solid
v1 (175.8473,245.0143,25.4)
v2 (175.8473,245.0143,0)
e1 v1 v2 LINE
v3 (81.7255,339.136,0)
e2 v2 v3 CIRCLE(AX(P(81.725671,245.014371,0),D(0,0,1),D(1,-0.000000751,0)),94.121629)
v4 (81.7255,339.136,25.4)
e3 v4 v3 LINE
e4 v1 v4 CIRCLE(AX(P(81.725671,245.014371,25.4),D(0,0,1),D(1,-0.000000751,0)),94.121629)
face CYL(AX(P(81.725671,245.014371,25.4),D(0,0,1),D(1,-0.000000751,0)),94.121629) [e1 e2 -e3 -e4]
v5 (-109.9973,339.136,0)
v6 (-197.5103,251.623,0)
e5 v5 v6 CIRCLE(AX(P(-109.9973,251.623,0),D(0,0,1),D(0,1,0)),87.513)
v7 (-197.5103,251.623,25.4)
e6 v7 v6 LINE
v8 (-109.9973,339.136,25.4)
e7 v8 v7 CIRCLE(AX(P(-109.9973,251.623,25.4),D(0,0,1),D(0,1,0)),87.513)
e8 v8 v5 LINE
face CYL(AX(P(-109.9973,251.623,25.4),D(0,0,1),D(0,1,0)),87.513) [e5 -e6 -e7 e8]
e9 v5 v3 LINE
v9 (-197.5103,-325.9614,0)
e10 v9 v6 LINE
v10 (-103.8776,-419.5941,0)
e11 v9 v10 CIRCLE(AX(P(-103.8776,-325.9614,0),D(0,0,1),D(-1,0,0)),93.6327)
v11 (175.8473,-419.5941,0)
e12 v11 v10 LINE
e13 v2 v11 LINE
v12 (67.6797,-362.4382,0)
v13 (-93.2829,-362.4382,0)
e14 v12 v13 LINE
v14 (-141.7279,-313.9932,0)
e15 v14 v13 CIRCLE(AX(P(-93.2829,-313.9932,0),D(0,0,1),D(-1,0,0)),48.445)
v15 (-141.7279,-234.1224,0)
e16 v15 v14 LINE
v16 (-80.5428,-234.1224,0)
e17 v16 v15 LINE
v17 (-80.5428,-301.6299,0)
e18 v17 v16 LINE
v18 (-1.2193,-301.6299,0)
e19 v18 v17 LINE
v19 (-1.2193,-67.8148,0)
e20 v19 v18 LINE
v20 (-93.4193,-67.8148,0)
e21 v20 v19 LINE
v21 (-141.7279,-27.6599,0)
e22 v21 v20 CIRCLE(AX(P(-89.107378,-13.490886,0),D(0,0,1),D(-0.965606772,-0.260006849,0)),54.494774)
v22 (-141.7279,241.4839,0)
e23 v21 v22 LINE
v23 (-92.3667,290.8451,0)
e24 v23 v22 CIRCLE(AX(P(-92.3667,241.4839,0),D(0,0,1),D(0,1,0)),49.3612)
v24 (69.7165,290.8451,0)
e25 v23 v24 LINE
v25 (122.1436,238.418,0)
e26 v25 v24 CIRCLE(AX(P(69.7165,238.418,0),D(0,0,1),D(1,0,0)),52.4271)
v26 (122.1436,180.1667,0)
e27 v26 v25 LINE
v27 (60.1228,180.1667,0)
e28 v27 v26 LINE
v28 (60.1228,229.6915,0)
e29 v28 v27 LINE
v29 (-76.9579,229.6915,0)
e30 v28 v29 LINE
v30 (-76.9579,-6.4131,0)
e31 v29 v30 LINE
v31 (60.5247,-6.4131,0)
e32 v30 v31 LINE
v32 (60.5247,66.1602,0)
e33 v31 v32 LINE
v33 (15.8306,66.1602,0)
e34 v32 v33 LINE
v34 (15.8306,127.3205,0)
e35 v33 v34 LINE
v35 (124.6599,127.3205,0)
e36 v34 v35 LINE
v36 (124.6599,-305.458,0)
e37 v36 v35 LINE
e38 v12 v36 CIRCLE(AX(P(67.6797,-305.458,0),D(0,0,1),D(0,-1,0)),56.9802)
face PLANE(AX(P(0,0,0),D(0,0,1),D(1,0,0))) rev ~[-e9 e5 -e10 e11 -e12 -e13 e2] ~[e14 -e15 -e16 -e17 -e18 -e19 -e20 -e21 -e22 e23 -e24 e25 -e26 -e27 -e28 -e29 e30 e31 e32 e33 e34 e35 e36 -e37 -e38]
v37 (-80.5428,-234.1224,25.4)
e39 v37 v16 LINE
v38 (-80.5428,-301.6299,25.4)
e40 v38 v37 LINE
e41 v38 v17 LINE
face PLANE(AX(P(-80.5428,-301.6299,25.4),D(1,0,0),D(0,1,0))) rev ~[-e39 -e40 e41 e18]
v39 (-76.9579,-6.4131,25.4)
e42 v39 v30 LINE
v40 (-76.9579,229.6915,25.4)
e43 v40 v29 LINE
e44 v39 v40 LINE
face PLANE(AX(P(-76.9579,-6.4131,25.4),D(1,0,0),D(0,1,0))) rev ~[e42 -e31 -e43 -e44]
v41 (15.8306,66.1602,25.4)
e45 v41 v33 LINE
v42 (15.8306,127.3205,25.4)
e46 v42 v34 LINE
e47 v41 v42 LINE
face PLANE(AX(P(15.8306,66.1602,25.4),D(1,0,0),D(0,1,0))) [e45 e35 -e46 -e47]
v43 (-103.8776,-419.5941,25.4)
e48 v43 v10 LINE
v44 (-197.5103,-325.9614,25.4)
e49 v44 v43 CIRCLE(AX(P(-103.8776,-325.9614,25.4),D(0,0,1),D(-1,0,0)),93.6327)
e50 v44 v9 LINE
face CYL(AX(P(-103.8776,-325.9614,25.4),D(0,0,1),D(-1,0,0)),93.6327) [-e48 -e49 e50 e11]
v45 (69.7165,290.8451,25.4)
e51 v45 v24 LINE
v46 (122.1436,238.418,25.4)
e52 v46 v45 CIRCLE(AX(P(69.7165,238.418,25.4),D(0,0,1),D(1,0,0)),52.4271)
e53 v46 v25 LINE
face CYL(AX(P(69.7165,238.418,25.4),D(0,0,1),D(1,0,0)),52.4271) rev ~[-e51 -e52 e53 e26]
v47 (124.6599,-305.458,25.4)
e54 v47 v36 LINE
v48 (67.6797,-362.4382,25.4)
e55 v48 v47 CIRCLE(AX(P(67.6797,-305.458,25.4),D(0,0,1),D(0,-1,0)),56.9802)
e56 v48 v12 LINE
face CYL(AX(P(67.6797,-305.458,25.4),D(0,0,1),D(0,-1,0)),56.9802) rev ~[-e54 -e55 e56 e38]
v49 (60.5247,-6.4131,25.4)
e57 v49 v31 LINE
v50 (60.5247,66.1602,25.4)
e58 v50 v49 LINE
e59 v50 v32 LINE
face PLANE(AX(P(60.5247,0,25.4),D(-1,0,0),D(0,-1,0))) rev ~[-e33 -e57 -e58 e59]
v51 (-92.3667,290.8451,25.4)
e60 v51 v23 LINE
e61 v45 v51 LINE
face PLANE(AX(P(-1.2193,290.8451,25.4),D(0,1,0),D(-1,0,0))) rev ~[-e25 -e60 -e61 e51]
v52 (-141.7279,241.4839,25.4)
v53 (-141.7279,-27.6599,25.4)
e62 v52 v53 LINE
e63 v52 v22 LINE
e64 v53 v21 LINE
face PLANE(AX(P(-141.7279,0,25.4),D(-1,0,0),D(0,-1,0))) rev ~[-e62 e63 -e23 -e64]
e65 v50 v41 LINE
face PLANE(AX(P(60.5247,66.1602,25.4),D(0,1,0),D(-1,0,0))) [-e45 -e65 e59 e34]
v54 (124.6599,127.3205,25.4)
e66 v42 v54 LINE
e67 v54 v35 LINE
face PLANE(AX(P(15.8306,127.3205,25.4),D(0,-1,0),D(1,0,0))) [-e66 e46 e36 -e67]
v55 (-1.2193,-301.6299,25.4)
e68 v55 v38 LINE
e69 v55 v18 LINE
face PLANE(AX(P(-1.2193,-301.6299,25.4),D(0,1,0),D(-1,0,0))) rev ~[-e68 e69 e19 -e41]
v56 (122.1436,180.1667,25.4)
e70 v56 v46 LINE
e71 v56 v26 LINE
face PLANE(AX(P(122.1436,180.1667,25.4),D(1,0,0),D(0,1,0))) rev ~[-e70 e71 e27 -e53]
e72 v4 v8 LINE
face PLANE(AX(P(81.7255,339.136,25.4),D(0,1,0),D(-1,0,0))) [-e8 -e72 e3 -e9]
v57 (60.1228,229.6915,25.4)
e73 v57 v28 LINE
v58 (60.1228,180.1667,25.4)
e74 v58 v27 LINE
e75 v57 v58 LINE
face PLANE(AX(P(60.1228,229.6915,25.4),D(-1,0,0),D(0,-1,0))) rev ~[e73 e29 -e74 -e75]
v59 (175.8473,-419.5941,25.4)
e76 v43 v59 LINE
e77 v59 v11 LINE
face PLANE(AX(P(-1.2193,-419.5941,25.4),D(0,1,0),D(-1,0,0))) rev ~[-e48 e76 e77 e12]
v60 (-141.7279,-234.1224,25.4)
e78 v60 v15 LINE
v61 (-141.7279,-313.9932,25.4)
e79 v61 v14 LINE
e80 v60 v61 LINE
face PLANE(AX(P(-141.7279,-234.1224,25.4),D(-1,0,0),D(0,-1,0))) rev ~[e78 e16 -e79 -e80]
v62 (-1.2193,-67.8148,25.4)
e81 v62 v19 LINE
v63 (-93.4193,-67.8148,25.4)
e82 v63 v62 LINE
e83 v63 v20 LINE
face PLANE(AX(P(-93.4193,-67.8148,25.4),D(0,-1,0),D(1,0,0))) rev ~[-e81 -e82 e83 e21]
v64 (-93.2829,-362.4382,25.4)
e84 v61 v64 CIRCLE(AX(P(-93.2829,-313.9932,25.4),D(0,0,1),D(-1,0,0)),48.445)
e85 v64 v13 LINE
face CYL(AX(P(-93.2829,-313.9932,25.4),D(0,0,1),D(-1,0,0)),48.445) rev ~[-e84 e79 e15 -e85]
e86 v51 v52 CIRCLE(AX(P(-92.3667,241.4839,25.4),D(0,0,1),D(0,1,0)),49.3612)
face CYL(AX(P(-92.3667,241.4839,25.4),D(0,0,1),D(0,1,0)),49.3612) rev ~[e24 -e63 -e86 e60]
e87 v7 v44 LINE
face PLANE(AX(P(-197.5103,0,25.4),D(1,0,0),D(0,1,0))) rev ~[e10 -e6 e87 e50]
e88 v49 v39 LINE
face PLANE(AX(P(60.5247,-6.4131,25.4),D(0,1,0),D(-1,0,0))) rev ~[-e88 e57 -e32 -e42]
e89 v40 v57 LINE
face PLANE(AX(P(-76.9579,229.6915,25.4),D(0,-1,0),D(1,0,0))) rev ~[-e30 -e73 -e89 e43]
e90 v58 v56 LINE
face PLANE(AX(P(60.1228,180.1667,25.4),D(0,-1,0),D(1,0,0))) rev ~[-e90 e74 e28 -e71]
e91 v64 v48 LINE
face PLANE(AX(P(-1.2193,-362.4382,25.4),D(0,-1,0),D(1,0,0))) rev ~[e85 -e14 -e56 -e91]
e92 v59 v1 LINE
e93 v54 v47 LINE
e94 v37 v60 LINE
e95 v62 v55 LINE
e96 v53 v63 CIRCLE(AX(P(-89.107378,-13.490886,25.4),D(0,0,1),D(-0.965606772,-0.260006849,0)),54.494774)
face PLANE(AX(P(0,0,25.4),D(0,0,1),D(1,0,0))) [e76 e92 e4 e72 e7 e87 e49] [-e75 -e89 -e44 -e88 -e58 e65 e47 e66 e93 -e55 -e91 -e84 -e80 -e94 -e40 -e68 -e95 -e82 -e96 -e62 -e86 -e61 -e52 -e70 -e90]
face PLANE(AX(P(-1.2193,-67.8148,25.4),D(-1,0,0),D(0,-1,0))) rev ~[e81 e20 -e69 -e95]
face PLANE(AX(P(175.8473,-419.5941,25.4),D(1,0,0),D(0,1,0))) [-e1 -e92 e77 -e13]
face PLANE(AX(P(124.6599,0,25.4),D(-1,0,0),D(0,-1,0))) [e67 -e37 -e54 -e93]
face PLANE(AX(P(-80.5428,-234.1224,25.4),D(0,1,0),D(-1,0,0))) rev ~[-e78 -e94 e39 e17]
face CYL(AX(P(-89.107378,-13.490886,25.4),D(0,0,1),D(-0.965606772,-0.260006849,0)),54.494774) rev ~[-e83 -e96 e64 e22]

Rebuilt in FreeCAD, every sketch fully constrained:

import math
import FreeCAD as App
import Part
import Sketcher
from FreeCAD import Vector
Q = App.Units.Quantity


def add_polygon(sketch, points):
    """Adds a closed chain of lines whose ends are joined by coincident constraints."""
    first, n = sketch.GeometryCount, len(points)
    for a, b in zip(points, points[1:] + points[:1]):
        sketch.addGeometry(Part.LineSegment(App.Vector(*a, 0), App.Vector(*b, 0)), False)
    for i in range(n):
        sketch.addConstraint(Sketcher.Constraint("Coincident", first + i, 2, first + (i + 1) % n, 1))

doc = App.newDocument("Part")
body = doc.addObject("PartDesign::Body", "Body")

# Sketch on XY plane
sketch1 = body.newObject("Sketcher::SketchObject", "Sketch")
sketch1.AttachmentSupport = (doc.getObject("XY_Plane"), [""])
sketch1.MapMode = "FlatFace"
add_polygon(sketch1, [(-381, -495), (381, -495), (381, 495), (-381, 495)])  # lines 0-3
sketch1.addConstraint([
    Sketcher.Constraint("Horizontal", 0),
    Sketcher.Constraint("Vertical", 1),
    Sketcher.Constraint("Horizontal", 2),
    Sketcher.Constraint("Vertical", 3),
    Sketcher.Constraint("Symmetric", 0, 2, 2, 2, -1, 1),
    Sketcher.Constraint("DistanceX", 0, 1, 0, 2, Q("30 in")),
    Sketcher.Constraint("DistanceY", 1, 1, 1, 2, Q("39 in")),
])
pad1 = body.newObject("PartDesign::Pad", "Pad")
pad1.Profile = sketch1
pad1.Length = Q("1 in")

# Sketch on XY plane
sketch2 = body.newObject("Sketcher::SketchObject", "Sketch001")
sketch2.AttachmentSupport = (doc.getObject("XY_Plane"), [""])
sketch2.MapMode = "FlatFace"
sketch2.AttachmentOffset = App.Placement(Vector(0, 0, 1 * 25.4), App.Rotation())
sketch2.addGeometry(Part.LineSegment(Vector(125, -305, 0), Vector(125, 127, 0)), False)  # 0
sketch2.addGeometry(Part.LineSegment(Vector(125, 127, 0), Vector(16, 127, 0)), False)  # 1
sketch2.addGeometry(Part.LineSegment(Vector(16, 127, 0), Vector(16, 66, 0)), False)  # 2
sketch2.addGeometry(Part.LineSegment(Vector(16, 66, 0), Vector(61, 66, 0)), False)  # 3
sketch2.addGeometry(Part.LineSegment(Vector(61, 66, 0), Vector(61, -6, 0)), False)  # 4
sketch2.addGeometry(Part.LineSegment(Vector(61, -6, 0), Vector(-77, -6, 0)), False)  # 5
sketch2.addGeometry(Part.LineSegment(Vector(-77, -6, 0), Vector(-77, 230, 0)), False)  # 6
sketch2.addGeometry(Part.LineSegment(Vector(-77, 230, 0), Vector(60, 230, 0)), False)  # 7
sketch2.addGeometry(Part.LineSegment(Vector(60, 230, 0), Vector(60, 180, 0)), False)  # 8
sketch2.addGeometry(Part.LineSegment(Vector(60, 180, 0), Vector(122, 180, 0)), False)  # 9
sketch2.addGeometry(Part.LineSegment(Vector(122, 180, 0), Vector(122, 238, 0)), False)  # 10
sketch2.addGeometry(Part.ArcOfCircle(Part.Circle(Vector(70, 238, 0), Vector(0, 0, 1), 52), math.radians(0), math.radians(90)), False)  # 11
sketch2.addGeometry(Part.LineSegment(Vector(70, 291, 0), Vector(-92, 291, 0)), False)  # 12
sketch2.addGeometry(Part.ArcOfCircle(Part.Circle(Vector(-92, 241, 0), Vector(0, 0, 1), 49), math.radians(90), math.radians(180)), False)  # 13
sketch2.addGeometry(Part.LineSegment(Vector(-142, 241, 0), Vector(-142, -28, 0)), False)  # 14
sketch2.addGeometry(Part.ArcOfCircle(Part.Circle(Vector(-89, -13, 0), Vector(0, 0, 1), 54), math.radians(-165), math.radians(-95)), False)  # 15
sketch2.addGeometry(Part.LineSegment(Vector(-93, -68, 0), Vector(-1, -68, 0)), False)  # 16
sketch2.addGeometry(Part.LineSegment(Vector(-1, -68, 0), Vector(-1, -302, 0)), False)  # 17
sketch2.addGeometry(Part.LineSegment(Vector(-1, -302, 0), Vector(-81, -302, 0)), False)  # 18
sketch2.addGeometry(Part.LineSegment(Vector(-81, -302, 0), Vector(-81, -234, 0)), False)  # 19
sketch2.addGeometry(Part.LineSegment(Vector(-81, -234, 0), Vector(-142, -234, 0)), False)  # 20
sketch2.addGeometry(Part.LineSegment(Vector(-142, -234, 0), Vector(-142, -314, 0)), False)  # 21
sketch2.addGeometry(Part.ArcOfCircle(Part.Circle(Vector(-93, -314, 0), Vector(0, 0, 1), 48), math.radians(180), math.radians(270)), False)  # 22
sketch2.addGeometry(Part.LineSegment(Vector(-93, -362, 0), Vector(68, -362, 0)), False)  # 23
sketch2.addGeometry(Part.ArcOfCircle(Part.Circle(Vector(68, -305, 0), Vector(0, 0, 1), 57), math.radians(-90), math.radians(0)), False)  # 24
add_polygon(sketch2, [(381, 495), (-381, 495), (-381, -495), (381, -495)])  # lines 25-28
sketch2.addGeometry(Part.LineSegment(Vector(176, 245, 0), Vector(176, -420, 0)), False)  # 29
sketch2.addGeometry(Part.LineSegment(Vector(176, -420, 0), Vector(-104, -420, 0)), False)  # 30
sketch2.addGeometry(Part.ArcOfCircle(Part.Circle(Vector(-104, -326, 0), Vector(0, 0, 1), 94), math.radians(180), math.radians(270)), False)  # 31
sketch2.addGeometry(Part.LineSegment(Vector(-198, -326, 0), Vector(-198, 252, 0)), False)  # 32
sketch2.addGeometry(Part.ArcOfCircle(Part.Circle(Vector(-110, 252, 0), Vector(0, 0, 1), 88), math.radians(90), math.radians(180)), False)  # 33
sketch2.addGeometry(Part.LineSegment(Vector(-110, 339, 0), Vector(82, 339, 0)), False)  # 34
sketch2.addGeometry(Part.ArcOfCircle(Part.Circle(Vector(82, 245, 0), Vector(0, 0, 1), 94), math.radians(0), math.radians(90)), False)  # 35
sketch2.addConstraint([
    Sketcher.Constraint("Coincident", 0, 2, 1, 1),
    Sketcher.Constraint("Coincident", 1, 2, 2, 1),
    Sketcher.Constraint("Coincident", 2, 2, 3, 1),
    Sketcher.Constraint("Coincident", 3, 2, 4, 1),
    Sketcher.Constraint("Coincident", 4, 2, 5, 1),
    Sketcher.Constraint("Coincident", 5, 2, 6, 1),
    Sketcher.Constraint("Coincident", 6, 2, 7, 1),
    Sketcher.Constraint("Coincident", 7, 2, 8, 1),
    Sketcher.Constraint("Coincident", 8, 2, 9, 1),
    Sketcher.Constraint("Coincident", 9, 2, 10, 1),
    Sketcher.Constraint("Tangent", 10, 2, 11, 1),
    Sketcher.Constraint("Tangent", 11, 2, 12, 1),
    Sketcher.Constraint("Tangent", 12, 2, 13, 1),
    Sketcher.Constraint("Tangent", 13, 2, 14, 1),
    Sketcher.Constraint("Coincident", 14, 2, 15, 1),
    Sketcher.Constraint("Coincident", 15, 2, 16, 1),
    Sketcher.Constraint("Coincident", 16, 2, 17, 1),
    Sketcher.Constraint("Coincident", 17, 2, 18, 1),
    Sketcher.Constraint("Coincident", 18, 2, 19, 1),
    Sketcher.Constraint("Coincident", 19, 2, 20, 1),
    Sketcher.Constraint("Coincident", 20, 2, 21, 1),
    Sketcher.Constraint("Tangent", 21, 2, 22, 1),
    Sketcher.Constraint("Tangent", 22, 2, 23, 1),
    Sketcher.Constraint("Tangent", 23, 2, 24, 1),
    Sketcher.Constraint("Tangent", 24, 2, 0, 1),
    Sketcher.Constraint("Coincident", 29, 2, 30, 1),
    Sketcher.Constraint("Tangent", 30, 2, 31, 2),
    Sketcher.Constraint("Tangent", 31, 1, 32, 1),
    Sketcher.Constraint("Tangent", 32, 2, 33, 2),
    Sketcher.Constraint("Tangent", 33, 1, 34, 1),
    Sketcher.Constraint("Tangent", 34, 2, 35, 2),
    Sketcher.Constraint("Tangent", 35, 1, 29, 1),
    Sketcher.Constraint("Vertical", 0),
    Sketcher.Constraint("Horizontal", 1),
    Sketcher.Constraint("Vertical", 2),
    Sketcher.Constraint("Horizontal", 3),
    Sketcher.Constraint("Vertical", 4),
    Sketcher.Constraint("Horizontal", 5),
    Sketcher.Constraint("Vertical", 6),
    Sketcher.Constraint("Horizontal", 7),
    Sketcher.Constraint("Vertical", 8),
    Sketcher.Constraint("Horizontal", 9),
    Sketcher.Constraint("Vertical", 10),
    Sketcher.Constraint("Horizontal", 12),
    Sketcher.Constraint("Vertical", 14),
    Sketcher.Constraint("Horizontal", 16),
    Sketcher.Constraint("Vertical", 17),
    Sketcher.Constraint("Horizontal", 18),
    Sketcher.Constraint("Vertical", 19),
    Sketcher.Constraint("Horizontal", 20),
    Sketcher.Constraint("Vertical", 21),
    Sketcher.Constraint("Horizontal", 23),
    Sketcher.Constraint("Horizontal", 25),
    Sketcher.Constraint("Vertical", 26),
    Sketcher.Constraint("Horizontal", 27),
    Sketcher.Constraint("Vertical", 28),
    Sketcher.Constraint("Vertical", 29),
    Sketcher.Constraint("Horizontal", 30),
    Sketcher.Constraint("Vertical", 32),
    Sketcher.Constraint("Horizontal", 34),
    Sketcher.Constraint("Symmetric", 25, 2, 27, 2, -1, 1),
    Sketcher.Constraint("Vertical", 14, 2, 20, 2),
    Sketcher.Constraint("DistanceX", 25, 2, 25, 1, Q("30 in")),
    Sketcher.Constraint("DistanceY", 26, 2, 26, 1, Q("39 in")),
    Sketcher.Constraint("DistanceX", 13, 2, 6, 2, Q("2.55 in")),
    Sketcher.Constraint("Radius", 33, Q("3.4454 in")),
    Sketcher.Constraint("Radius", 11, Q("52.427 mm")),
    Sketcher.Constraint("Radius", 13, Q("49.3612 mm")),
    Sketcher.Constraint("Radius", 15, Q("54.4947 mm")),
    Sketcher.Constraint("Radius", 22, Q("48.445 mm")),
    Sketcher.Constraint("Radius", 24, Q("56.9802 mm")),
    Sketcher.Constraint("Radius", 31, Q("93.6327 mm")),
    Sketcher.Constraint("Radius", 35, Q("94.1218 mm")),
    Sketcher.Constraint("DistanceY", 7, 2, 11, 2, Q("61.1536 mm")),
    Sketcher.Constraint("DistanceX", 3, 1, 3, 2, Q("1.7596 in")),
    Sketcher.Constraint("DistanceX", 5, 2, 5, 1, Q("5.4127 in")),
    Sketcher.Constraint("DistanceX", 23, 1, 23, 2, Q("6.3371 in")),
    Sketcher.Constraint("DistanceX", 30, 2, 30, 1, Q("11.0128 in")),
    Sketcher.Constraint("DistanceY", 8, 2, 8, 1, Q("1.9498 in")),
    Sketcher.Constraint("DistanceX", 16, 2, -1, 1, Q("0.048 in")),
    Sketcher.Constraint("DistanceX", 31, 1, -1, 1, Q("7.776 in")),
    Sketcher.Constraint("DistanceY", 31, 3, 15, 3, Q("12.302 in")),
    Sketcher.Constraint("DistanceY", 13, 3, 35, 3, Q("0.139 in")),
    Sketcher.Constraint("DistanceX", 7, 1, 7, 2, Q("137.0807 mm")),
    Sketcher.Constraint("DistanceX", 9, 1, 9, 2, Q("62.0208 mm")),
    Sketcher.Constraint("DistanceX", 16, 1, 16, 2, Q("92.2 mm")),
    Sketcher.Constraint("DistanceX", 18, 2, 18, 1, Q("79.3235 mm")),
    Sketcher.Constraint("DistanceX", 20, 2, 20, 1, Q("61.185 mm")),
    Sketcher.Constraint("DistanceY", 0, 1, 0, 2, Q("432.7785 mm")),
    Sketcher.Constraint("DistanceY", 2, 2, 2, 1, Q("61.1603 mm")),
    Sketcher.Constraint("DistanceY", 4, 2, 4, 1, Q("72.5733 mm")),
    Sketcher.Constraint("DistanceY", 6, 1, 6, 2, Q("236.1046 mm")),
    Sketcher.Constraint("DistanceY", 14, 2, 14, 1, Q("269.1438 mm")),
    Sketcher.Constraint("DistanceY", 17, 2, 17, 1, Q("233.815 mm")),
    Sketcher.Constraint("DistanceY", 19, 1, 19, 2, Q("67.5075 mm")),
    Sketcher.Constraint("DistanceY", 21, 2, 21, 1, Q("79.8708 mm")),
    Sketcher.Constraint("DistanceY", 24, 3, -1, 1, Q("12.0259 in")),
])
pocket1 = body.newObject("PartDesign::Pocket", "Pocket")
pocket1.Profile = sketch2
pocket1.Length = Q("1 in")

doc.recompute()
